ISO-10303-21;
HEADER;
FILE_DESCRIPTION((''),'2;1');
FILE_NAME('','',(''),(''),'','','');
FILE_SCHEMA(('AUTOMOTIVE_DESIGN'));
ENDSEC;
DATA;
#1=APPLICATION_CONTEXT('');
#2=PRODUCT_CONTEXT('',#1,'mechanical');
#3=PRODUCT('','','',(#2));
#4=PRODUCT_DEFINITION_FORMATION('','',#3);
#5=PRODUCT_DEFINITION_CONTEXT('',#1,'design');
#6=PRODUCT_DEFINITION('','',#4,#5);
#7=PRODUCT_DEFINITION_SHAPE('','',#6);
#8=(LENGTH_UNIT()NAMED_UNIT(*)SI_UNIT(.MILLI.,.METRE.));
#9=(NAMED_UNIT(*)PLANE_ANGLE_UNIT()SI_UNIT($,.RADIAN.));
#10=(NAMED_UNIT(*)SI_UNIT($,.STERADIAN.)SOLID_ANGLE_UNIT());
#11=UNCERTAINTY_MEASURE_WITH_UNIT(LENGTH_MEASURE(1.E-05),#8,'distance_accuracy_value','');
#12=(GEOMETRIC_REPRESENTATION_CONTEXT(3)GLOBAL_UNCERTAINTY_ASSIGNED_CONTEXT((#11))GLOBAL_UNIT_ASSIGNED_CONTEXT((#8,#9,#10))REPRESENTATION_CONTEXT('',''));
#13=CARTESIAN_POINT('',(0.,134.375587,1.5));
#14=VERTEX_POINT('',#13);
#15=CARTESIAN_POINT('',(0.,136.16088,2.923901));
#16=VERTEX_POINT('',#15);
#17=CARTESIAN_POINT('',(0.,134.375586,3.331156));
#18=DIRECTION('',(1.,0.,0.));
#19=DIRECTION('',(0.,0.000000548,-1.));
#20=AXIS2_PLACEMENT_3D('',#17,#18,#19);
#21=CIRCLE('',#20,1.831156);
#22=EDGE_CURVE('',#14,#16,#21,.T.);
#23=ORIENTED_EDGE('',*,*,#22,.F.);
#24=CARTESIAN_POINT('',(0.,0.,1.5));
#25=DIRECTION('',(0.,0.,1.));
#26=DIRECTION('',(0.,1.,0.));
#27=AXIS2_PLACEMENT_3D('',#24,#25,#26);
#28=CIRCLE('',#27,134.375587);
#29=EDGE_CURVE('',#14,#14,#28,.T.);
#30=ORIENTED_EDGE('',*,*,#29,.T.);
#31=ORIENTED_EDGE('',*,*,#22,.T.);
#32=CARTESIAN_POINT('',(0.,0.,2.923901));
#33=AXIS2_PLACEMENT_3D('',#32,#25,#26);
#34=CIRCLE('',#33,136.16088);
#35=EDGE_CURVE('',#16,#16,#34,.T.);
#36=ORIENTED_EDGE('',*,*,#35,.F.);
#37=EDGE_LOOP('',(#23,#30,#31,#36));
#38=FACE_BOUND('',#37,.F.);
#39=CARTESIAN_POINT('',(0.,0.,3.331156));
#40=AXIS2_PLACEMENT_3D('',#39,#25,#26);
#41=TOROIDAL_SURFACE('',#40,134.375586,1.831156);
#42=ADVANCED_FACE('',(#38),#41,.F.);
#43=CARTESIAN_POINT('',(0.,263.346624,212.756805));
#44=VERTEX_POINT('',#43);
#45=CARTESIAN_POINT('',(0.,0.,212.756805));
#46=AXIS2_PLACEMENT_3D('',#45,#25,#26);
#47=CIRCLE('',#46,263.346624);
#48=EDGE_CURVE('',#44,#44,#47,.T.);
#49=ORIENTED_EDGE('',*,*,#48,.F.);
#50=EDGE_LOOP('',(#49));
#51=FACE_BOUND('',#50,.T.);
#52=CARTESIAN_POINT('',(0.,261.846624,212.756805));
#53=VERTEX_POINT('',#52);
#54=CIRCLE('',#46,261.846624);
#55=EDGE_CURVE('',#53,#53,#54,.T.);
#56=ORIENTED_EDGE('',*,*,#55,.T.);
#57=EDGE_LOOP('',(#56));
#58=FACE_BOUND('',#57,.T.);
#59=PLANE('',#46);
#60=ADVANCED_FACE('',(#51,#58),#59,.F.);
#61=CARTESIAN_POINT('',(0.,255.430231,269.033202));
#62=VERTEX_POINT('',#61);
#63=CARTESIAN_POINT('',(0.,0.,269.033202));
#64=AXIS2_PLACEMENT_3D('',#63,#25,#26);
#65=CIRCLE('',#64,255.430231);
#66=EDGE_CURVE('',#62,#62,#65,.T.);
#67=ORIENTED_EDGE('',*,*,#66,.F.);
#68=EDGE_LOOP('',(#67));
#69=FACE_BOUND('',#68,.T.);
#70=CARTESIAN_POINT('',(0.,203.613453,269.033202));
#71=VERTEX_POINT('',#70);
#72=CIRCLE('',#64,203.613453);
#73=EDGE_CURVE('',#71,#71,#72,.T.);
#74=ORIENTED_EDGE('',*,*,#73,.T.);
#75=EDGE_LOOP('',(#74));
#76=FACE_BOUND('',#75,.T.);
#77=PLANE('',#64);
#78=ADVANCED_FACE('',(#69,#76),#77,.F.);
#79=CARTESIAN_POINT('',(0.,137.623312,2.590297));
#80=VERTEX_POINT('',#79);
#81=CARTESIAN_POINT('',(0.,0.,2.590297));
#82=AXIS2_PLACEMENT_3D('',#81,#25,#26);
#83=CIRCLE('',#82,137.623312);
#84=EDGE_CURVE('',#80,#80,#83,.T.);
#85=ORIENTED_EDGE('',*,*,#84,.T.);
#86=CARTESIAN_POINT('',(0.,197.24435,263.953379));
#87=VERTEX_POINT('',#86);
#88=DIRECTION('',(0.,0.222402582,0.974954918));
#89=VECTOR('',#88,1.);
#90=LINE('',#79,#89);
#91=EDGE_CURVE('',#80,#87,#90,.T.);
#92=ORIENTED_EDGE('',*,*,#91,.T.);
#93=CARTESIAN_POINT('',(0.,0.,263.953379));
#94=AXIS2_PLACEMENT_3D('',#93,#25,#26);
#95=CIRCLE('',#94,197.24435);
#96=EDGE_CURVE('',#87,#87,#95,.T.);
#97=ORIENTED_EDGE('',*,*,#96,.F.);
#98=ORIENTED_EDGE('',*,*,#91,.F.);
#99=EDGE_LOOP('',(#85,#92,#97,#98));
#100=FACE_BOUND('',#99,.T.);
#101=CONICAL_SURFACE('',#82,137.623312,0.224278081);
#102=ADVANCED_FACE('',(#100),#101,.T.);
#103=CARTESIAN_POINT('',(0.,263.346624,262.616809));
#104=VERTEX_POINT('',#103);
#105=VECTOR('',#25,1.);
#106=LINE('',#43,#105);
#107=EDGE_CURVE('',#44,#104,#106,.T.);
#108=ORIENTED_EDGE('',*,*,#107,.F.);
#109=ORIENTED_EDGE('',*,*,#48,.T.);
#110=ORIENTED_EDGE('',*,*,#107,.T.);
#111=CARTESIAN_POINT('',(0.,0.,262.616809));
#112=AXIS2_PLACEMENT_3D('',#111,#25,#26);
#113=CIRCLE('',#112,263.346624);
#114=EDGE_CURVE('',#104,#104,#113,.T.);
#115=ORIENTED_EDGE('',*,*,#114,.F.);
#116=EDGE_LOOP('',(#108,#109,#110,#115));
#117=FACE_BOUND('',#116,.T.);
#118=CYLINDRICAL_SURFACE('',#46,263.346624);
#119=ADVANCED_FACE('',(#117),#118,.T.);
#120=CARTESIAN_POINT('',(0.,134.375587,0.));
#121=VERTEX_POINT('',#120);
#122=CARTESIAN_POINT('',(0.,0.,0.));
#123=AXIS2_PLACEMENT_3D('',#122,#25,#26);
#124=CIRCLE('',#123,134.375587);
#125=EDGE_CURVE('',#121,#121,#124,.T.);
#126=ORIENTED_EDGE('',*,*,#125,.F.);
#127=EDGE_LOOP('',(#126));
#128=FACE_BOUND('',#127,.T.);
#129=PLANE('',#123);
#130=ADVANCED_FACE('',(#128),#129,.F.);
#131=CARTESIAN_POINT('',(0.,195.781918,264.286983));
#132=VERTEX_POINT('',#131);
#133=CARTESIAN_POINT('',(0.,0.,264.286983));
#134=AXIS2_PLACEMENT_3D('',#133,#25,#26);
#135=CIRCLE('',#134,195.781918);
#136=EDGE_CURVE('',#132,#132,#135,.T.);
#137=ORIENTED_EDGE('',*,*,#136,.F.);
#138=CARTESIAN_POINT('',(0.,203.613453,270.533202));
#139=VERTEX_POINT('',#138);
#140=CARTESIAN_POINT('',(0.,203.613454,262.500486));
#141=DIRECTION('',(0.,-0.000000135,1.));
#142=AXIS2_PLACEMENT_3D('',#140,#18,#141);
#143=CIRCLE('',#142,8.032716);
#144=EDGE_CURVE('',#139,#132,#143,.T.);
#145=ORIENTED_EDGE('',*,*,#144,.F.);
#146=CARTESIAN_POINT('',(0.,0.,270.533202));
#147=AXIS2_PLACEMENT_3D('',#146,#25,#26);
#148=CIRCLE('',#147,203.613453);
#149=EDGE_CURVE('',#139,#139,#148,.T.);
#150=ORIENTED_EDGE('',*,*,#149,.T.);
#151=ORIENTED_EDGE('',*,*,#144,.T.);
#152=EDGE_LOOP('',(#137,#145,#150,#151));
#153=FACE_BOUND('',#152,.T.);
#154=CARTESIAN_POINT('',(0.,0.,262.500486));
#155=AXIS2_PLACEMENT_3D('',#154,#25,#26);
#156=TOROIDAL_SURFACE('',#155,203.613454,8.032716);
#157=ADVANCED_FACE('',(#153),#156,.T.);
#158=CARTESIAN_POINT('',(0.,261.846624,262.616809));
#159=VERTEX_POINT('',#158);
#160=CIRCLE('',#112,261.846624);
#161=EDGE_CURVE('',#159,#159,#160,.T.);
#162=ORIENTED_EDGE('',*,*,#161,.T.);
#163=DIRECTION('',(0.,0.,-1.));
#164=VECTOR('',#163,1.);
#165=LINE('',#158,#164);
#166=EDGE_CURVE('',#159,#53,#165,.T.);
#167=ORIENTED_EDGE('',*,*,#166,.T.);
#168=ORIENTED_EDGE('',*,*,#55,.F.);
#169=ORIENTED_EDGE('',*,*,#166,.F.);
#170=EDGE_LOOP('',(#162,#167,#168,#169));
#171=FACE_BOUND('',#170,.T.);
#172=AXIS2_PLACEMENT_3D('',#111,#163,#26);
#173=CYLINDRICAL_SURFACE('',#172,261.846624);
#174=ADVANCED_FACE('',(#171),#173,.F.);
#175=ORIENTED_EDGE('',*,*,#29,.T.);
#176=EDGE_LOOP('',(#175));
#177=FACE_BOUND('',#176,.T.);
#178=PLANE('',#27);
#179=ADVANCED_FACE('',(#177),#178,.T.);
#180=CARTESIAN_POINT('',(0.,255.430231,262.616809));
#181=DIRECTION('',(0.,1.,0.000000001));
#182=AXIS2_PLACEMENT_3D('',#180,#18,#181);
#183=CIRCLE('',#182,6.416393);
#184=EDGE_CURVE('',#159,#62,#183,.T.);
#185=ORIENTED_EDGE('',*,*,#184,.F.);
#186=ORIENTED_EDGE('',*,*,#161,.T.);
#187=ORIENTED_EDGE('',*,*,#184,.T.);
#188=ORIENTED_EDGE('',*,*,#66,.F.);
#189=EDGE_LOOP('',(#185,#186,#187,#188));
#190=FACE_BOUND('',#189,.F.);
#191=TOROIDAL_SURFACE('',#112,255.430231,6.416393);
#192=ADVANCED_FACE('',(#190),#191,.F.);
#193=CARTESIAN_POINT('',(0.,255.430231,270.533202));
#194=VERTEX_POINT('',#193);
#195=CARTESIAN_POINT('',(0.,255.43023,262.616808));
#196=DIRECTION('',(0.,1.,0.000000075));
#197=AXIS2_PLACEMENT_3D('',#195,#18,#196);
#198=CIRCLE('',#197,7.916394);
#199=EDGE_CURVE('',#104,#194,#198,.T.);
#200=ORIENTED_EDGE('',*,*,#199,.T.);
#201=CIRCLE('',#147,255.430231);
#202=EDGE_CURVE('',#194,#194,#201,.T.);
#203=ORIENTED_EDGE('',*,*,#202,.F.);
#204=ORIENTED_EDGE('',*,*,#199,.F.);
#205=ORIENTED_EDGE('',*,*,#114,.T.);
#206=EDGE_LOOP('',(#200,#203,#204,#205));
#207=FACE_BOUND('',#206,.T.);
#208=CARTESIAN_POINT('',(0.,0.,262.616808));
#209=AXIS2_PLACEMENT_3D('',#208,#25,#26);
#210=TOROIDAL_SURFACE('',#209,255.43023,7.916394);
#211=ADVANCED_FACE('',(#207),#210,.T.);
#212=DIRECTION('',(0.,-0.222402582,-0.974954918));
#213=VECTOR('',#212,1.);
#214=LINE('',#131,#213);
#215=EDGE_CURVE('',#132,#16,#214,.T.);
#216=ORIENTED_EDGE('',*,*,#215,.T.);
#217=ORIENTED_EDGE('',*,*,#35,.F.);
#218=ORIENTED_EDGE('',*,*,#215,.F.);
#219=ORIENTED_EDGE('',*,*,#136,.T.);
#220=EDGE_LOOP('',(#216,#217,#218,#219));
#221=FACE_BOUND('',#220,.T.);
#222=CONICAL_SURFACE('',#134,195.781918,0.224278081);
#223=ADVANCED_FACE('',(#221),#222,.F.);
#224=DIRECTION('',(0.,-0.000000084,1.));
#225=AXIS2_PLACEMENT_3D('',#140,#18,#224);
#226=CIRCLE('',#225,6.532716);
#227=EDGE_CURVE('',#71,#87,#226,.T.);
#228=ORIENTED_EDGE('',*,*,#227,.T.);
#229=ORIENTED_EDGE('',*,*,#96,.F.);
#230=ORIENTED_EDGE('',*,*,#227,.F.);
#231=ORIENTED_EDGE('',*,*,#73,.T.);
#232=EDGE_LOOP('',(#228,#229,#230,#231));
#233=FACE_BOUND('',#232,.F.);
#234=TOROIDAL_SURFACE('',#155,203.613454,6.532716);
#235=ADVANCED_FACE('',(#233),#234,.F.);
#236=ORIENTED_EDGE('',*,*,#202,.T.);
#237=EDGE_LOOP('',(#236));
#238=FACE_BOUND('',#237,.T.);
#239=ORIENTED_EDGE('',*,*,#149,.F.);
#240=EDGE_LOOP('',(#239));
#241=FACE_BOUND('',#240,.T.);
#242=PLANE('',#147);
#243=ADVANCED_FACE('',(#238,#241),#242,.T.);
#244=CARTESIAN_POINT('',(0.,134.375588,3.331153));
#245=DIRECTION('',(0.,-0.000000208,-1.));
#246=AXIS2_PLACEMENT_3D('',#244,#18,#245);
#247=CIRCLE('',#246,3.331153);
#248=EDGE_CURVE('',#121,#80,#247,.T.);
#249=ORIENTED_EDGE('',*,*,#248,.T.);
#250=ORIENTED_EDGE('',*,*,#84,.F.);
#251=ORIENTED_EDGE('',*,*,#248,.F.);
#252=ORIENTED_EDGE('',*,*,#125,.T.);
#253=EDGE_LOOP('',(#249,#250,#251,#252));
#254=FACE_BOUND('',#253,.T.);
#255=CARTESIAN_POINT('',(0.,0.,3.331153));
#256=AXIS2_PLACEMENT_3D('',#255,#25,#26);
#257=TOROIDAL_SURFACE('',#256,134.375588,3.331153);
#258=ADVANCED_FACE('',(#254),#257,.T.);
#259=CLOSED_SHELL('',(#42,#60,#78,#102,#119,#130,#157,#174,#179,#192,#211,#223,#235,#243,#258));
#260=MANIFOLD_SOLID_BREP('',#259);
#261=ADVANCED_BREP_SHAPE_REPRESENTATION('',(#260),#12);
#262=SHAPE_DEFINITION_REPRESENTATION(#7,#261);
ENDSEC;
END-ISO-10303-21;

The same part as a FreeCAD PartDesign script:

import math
import FreeCAD as App
import Part
import Sketcher
Q = App.Units.Quantity

doc = App.newDocument("Part")
params = doc.addObject("Spreadsheet::Sheet", "Params")
for row, (alias, value) in enumerate([
    ("sketch1_width", "1.5 mm"),
    ("sketch1_height", "1.5 mm"),
    ("revolution_angle", "360 deg"),
], start=1):
    params.set(f"A{row}", alias)
    params.set(f"B{row}", "=" + value)
    params.setAlias(f"B{row}", alias)

body = doc.addObject("PartDesign::Body", "Body")

sketch1 = doc.addObject("Sketcher::SketchObject", "Sketch")
body.addObject(sketch1)
sketch1.AttachmentSupport = (doc.YZ_Plane, [""])
sketch1.MapMode = "FlatFace"
sketch1.addGeometry(Part.LineSegment(App.Vector(0, 0, 0), App.Vector(134.375587, 0, 0)), False)
sketch1.addGeometry(Part.ArcOfCircle(Part.Circle(App.Vector(134.375588, 3.331153, 0), App.Vector(0, 0, 1), 3.331153), math.radians(-90.000012), math.radians(-12.850171)), False)
sketch1.addGeometry(Part.LineSegment(App.Vector(137.623312, 2.590297, 0), App.Vector(197.24435, 263.953379, 0)), False)
sketch1.addGeometry(Part.ArcOfCircle(Part.Circle(App.Vector(203.613454, 262.500486, 0), App.Vector(0, 0, 1), 6.532716), math.radians(90.000005), math.radians(167.149812)), False)
sketch1.addGeometry(Part.LineSegment(App.Vector(203.613453, 269.033202, 0), App.Vector(255.430231, 269.033202, 0)), False)
sketch1.addGeometry(Part.ArcOfCircle(Part.Circle(App.Vector(255.430231, 262.616809, 0), App.Vector(0, 0, 1), 6.416393), math.radians(0), math.radians(90)), False)
sketch1.addGeometry(Part.LineSegment(App.Vector(261.846624, 262.616809, 0), App.Vector(261.846624, 212.756805, 0)), False)
sketch1.addGeometry(Part.LineSegment(App.Vector(261.846624, 212.756805, 0), App.Vector(263.346624, 212.756805, 0)), False)
sketch1.addGeometry(Part.LineSegment(App.Vector(263.346624, 212.756805, 0), App.Vector(263.346624, 262.616809, 0)), False)
sketch1.addGeometry(Part.ArcOfCircle(Part.Circle(App.Vector(255.43023, 262.616808, 0), App.Vector(0, 0, 1), 7.916394), math.radians(0.000004), math.radians(89.999996)), False)
sketch1.addGeometry(Part.LineSegment(App.Vector(255.430231, 270.533202, 0), App.Vector(203.613453, 270.533202, 0)), False)
sketch1.addGeometry(Part.ArcOfCircle(Part.Circle(App.Vector(203.613454, 262.500486, 0), App.Vector(0, 0, 1), 8.032716), math.radians(90.000008), math.radians(167.14981)), False)
sketch1.addGeometry(Part.LineSegment(App.Vector(195.781918, 264.286983, 0), App.Vector(136.16088, 2.923901, 0)), False)
sketch1.addGeometry(Part.ArcOfCircle(Part.Circle(App.Vector(134.375586, 3.331156, 0), App.Vector(0, 0, 1), 1.831156), math.radians(-89.999969), math.radians(-12.850217)), False)
sketch1.addGeometry(Part.LineSegment(App.Vector(134.375587, 1.5, 0), App.Vector(0, 1.5, 0)), False)
sketch1.addGeometry(Part.LineSegment(App.Vector(0, 1.5, 0), App.Vector(0, 0, 0)), False)
sketch1.addConstraint(Sketcher.Constraint("Coincident", 0, 2, 1, 1))
sketch1.addConstraint(Sketcher.Constraint("Coincident", 1, 2, 2, 1))
sketch1.addConstraint(Sketcher.Constraint("Coincident", 2, 2, 3, 2))
sketch1.addConstraint(Sketcher.Constraint("Coincident", 3, 1, 4, 1))
sketch1.addConstraint(Sketcher.Constraint("Coincident", 4, 2, 5, 2))
sketch1.addConstraint(Sketcher.Constraint("Coincident", 5, 1, 6, 1))
sketch1.addConstraint(Sketcher.Constraint("Coincident", 6, 2, 7, 1))
sketch1.addConstraint(Sketcher.Constraint("Coincident", 7, 2, 8, 1))
sketch1.addConstraint(Sketcher.Constraint("Coincident", 8, 2, 9, 1))
sketch1.addConstraint(Sketcher.Constraint("Coincident", 9, 2, 10, 1))
sketch1.addConstraint(Sketcher.Constraint("Coincident", 10, 2, 11, 1))
sketch1.addConstraint(Sketcher.Constraint("Coincident", 11, 2, 12, 1))
sketch1.addConstraint(Sketcher.Constraint("Coincident", 12, 2, 13, 2))
sketch1.addConstraint(Sketcher.Constraint("Coincident", 13, 1, 14, 1))
sketch1.addConstraint(Sketcher.Constraint("Coincident", 14, 2, 15, 1))
sketch1.addConstraint(Sketcher.Constraint("Coincident", 15, 2, 0, 1))
sketch1.addConstraint(Sketcher.Constraint("Horizontal", 0))
sketch1.addConstraint(Sketcher.Constraint("Horizontal", 4))
sketch1.addConstraint(Sketcher.Constraint("Vertical", 6))
sketch1.addConstraint(Sketcher.Constraint("Horizontal", 7))
sketch1.addConstraint(Sketcher.Constraint("Vertical", 8))
sketch1.addConstraint(Sketcher.Constraint("Horizontal", 10))
sketch1.addConstraint(Sketcher.Constraint("Horizontal", 14))
sketch1.addConstraint(Sketcher.Constraint("Vertical", 15))
sketch1.addConstraint(Sketcher.Constraint("Coincident", 15, 2, -1, 1))
sketch1.addConstraint(Sketcher.Constraint("Coincident", 9, 3, 5, 3))
sketch1.addConstraint(Sketcher.Constraint("Coincident", 11, 3, 3, 3))
sketch1.addConstraint(Sketcher.Constraint("Coincident", 13, 3, 1, 3))
sketch1.addConstraint(Sketcher.Constraint("DistanceX", 7, 1, 7, 2, Q("1.5 mm")))
sketch1.addConstraint(Sketcher.Constraint("DistanceY", 15, 2, 15, 1, Q("1.5 mm")))
sketch1.addConstraint(Sketcher.Constraint("Radius", 1, Q("3.331153 mm")))
sketch1.addConstraint(Sketcher.Constraint("Radius", 3, Q("6.532716 mm")))
sketch1.addConstraint(Sketcher.Constraint("Radius", 5, Q("6.416393 mm")))
sketch1.addConstraint(Sketcher.Constraint("DistanceY", -1, 1, 3, 1, Q("269.033202 mm")))
sketch1.addConstraint(Sketcher.Constraint("DistanceY", -1, 1, 12, 2, Q("2.923901 mm")))
sketch1.addConstraint(Sketcher.Constraint("DistanceX", 0, 1, 0, 2, Q("134.375587 mm")))
sketch1.addConstraint(Sketcher.Constraint("DistanceX", 4, 1, 4, 2, Q("51.816778 mm")))
sketch1.addConstraint(Sketcher.Constraint("DistanceX", 10, 2, 10, 1, Q("51.816778 mm")))
sketch1.addConstraint(Sketcher.Constraint("DistanceX", 14, 2, 14, 1, Q("134.375587 mm")))
sketch1.addConstraint(Sketcher.Constraint("DistanceY", 6, 2, 6, 1, Q("49.860004 mm")))
sketch1.addConstraint(Sketcher.Constraint("DistanceY", 8, 1, 8, 2, Q("49.860004 mm")))
sketch1.addConstraint(Sketcher.Constraint("DistanceX", -1, 1, 5, 3, Q("255.430231 mm")))
sketch1.addConstraint(Sketcher.Constraint("DistanceX", -1, 1, 1, 2, Q("137.623312 mm")))
sketch1.addConstraint(Sketcher.Constraint("DistanceX", -1, 1, 2, 2, Q("197.24435 mm")))
sketch1.addConstraint(Sketcher.Constraint("DistanceY", -1, 1, 2, 2, Q("263.953379 mm")))
sketch1.addConstraint(Sketcher.Constraint("DistanceX", -1, 1, 4, 2, Q("255.430231 mm")))
sketch1.addConstraint(Sketcher.Constraint("DistanceY", -1, 1, 5, 1, Q("262.616809 mm")))
sketch1.addConstraint(Sketcher.Constraint("DistanceX", -1, 1, 9, 2, Q("255.430231 mm")))
sketch1.addConstraint(Sketcher.Constraint("DistanceX", -1, 1, 12, 2, Q("136.16088 mm")))
sketch1.addConstraint(Sketcher.Constraint("DistanceY", 11, 2, 3, 1, Q("4.746219 mm")))
sketch1.setExpression("Constraints[28]", "Params.sketch1_width")
sketch1.setExpression("Constraints[29]", "Params.sketch1_height")
revolution = doc.addObject("PartDesign::Revolution", "Revolution")
body.addObject(revolution)
revolution.Profile = sketch1
revolution.ReferenceAxis = (sketch1, ["V_Axis"])
revolution.setExpression("Angle", "Params.revolution_angle")

doc.recompute()
